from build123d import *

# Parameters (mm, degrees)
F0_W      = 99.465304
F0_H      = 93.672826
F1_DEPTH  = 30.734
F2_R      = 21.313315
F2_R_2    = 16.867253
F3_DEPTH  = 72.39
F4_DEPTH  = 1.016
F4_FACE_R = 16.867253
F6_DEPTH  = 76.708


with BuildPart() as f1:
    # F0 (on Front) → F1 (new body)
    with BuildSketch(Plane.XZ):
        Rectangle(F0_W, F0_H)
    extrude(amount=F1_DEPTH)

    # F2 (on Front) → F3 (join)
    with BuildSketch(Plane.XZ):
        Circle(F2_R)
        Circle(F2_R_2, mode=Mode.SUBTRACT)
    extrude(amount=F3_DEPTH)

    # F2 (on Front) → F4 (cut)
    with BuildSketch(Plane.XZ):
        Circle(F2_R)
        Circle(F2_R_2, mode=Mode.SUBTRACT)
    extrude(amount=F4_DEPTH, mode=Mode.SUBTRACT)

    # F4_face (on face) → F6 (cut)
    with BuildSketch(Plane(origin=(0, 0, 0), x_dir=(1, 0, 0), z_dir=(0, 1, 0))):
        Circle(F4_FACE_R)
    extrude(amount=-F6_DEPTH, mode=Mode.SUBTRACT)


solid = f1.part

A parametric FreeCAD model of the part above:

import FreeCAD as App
import Part
import Sketcher

V = App.Vector
Q = App.Units.Quantity

doc = App.newDocument("Part")
body = doc.addObject("PartDesign::Body", "Body")

# Sketch on XZ plane
sketch1 = doc.addObject("Sketcher::SketchObject", "Sketch")
body.addObject(sketch1)
sketch1.AttachmentSupport = (doc.XZ_Plane, [""])
sketch1.MapMode = "FlatFace"
sketch1.addGeometry([
    Part.LineSegment(V(-50, 47, 0), V(-50, -47, 0)),
    Part.LineSegment(V(-50, -47, 0), V(50, -47, 0)),
    Part.LineSegment(V(50, -47, 0), V(50, 47, 0)),
    Part.LineSegment(V(50, 47, 0), V(-50, 47, 0)),
], False)
sketch1.addConstraint([
    Sketcher.Constraint("Coincident", 0, 2, 1, 1),
    Sketcher.Constraint("Coincident", 1, 2, 2, 1),
    Sketcher.Constraint("Coincident", 2, 2, 3, 1),
    Sketcher.Constraint("Coincident", 3, 2, 0, 1),
    Sketcher.Constraint("Vertical", 0),
    Sketcher.Constraint("Horizontal", 1),
    Sketcher.Constraint("Vertical", 2),
    Sketcher.Constraint("Horizontal", 3),
    Sketcher.Constraint("Symmetric", 0, 2, 2, 2, -1, 1),
    Sketcher.Constraint("DistanceX", 1, 1, 1, 2, Q("99.465304 mm")),
    Sketcher.Constraint("DistanceY", 0, 2, 0, 1, Q("93.672826 mm")),
])
pad1 = doc.addObject("PartDesign::Pad", "Pad")
body.addObject(pad1)
pad1.Profile = sketch1
pad1.Length = Q("1.21 in")

# Sketch on XZ plane
sketch2 = doc.addObject("Sketcher::SketchObject", "Sketch001")
body.addObject(sketch2)
sketch2.AttachmentSupport = (doc.XZ_Plane, [""])
sketch2.MapMode = "FlatFace"
sketch2.addGeometry([
    Part.Circle(V(0, 0, 0), V(0, 0, 1), 21),
    Part.Circle(V(0, 0, 0), V(0, 0, 1), 17),
], False)
sketch2.addConstraint([
    Sketcher.Constraint("Coincident", 0, 3, -1, 1),
    Sketcher.Constraint("Coincident", 1, 3, -1, 1),
    Sketcher.Constraint("Diameter", 0, Q("42.62663 mm")),
    Sketcher.Constraint("Diameter", 1, Q("33.734506 mm")),
])
pad2 = doc.addObject("PartDesign::Pad", "Pad001")
body.addObject(pad2)
pad2.Profile = sketch2
pad2.Length = Q("2.85 in")

# Sketch on XZ plane
sketch3 = doc.addObject("Sketcher::SketchObject", "Sketch002")
body.addObject(sketch3)
sketch3.AttachmentSupport = (doc.XZ_Plane, [""])
sketch3.MapMode = "FlatFace"
sketch3.addGeometry([
    Part.Circle(V(0, 0, 0), V(0, 0, 1), 21),
    Part.Circle(V(0, 0, 0), V(0, 0, 1), 17),
], False)
sketch3.addConstraint([
    Sketcher.Constraint("Coincident", 0, 3, -1, 1),
    Sketcher.Constraint("Coincident", 1, 3, -1, 1),
    Sketcher.Constraint("Diameter", 0, Q("42.62663 mm")),
    Sketcher.Constraint("Diameter", 1, Q("33.734506 mm")),
])
pocket1 = doc.addObject("PartDesign::Pocket", "Pocket")
body.addObject(pocket1)
pocket1.Profile = sketch3
pocket1.Length = Q("0.04 in")
pocket1.Reversed = True

# Sketch on XZ plane
sketch4 = doc.addObject("Sketcher::SketchObject", "Sketch003")
body.addObject(sketch4)
sketch4.AttachmentSupport = (doc.XZ_Plane, [""])
sketch4.MapMode = "FlatFace"
sketch4.addGeometry(Part.Circle(V(0, 0, 0), V(0, 0, 1), 17), False)
sketch4.addConstraint([
    Sketcher.Constraint("Coincident", 0, 3, -1, 1),
    Sketcher.Constraint("Diameter", 0, Q("33.734506 mm")),
])
pocket2 = doc.addObject("PartDesign::Pocket", "Pocket001")
body.addObject(pocket2)
pocket2.Profile = sketch4
pocket2.Length = Q("3.02 in")
pocket2.Reversed = True

doc.recompute()
